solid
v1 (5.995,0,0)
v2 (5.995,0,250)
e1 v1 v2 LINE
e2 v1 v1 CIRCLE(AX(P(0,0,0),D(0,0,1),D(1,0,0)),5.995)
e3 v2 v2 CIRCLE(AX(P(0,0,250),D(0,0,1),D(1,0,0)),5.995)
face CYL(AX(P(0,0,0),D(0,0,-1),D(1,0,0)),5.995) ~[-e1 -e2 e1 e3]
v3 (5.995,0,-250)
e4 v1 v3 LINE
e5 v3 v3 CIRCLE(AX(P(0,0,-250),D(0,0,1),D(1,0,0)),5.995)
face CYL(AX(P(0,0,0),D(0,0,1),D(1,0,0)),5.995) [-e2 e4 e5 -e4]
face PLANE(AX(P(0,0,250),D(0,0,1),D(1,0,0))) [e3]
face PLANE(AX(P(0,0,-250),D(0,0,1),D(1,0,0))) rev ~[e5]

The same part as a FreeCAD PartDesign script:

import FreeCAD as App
import Part
import Sketcher

doc = App.newDocument("Part")
params = doc.addObject("Spreadsheet::Sheet", "Params")
for row, (alias, value) in enumerate([
    ("sketch1_diameter", "11.99 mm"),
    ("pad1_length", "500 mm"),
], start=1):
    params.set(f"A{row}", alias)
    params.set(f"B{row}", "=" + value)
    params.setAlias(f"B{row}", alias)

body = doc.addObject("PartDesign::Body", "Body")

sketch1 = doc.addObject("Sketcher::SketchObject", "Sketch")
body.addObject(sketch1)
sketch1.AttachmentSupport = (doc.XY_Plane, [""])
sketch1.MapMode = "FlatFace"
sketch1.addGeometry(Part.Circle(App.Vector(0, 0, 0), App.Vector(0, 0, 1), 5.995), False)
sketch1.addConstraint([
    Sketcher.Constraint("Coincident", 0, 3, -1, 1),
    Sketcher.Constraint("Diameter", 0, 11.99),
])
sketch1.setExpression("Constraints[1]", "Params.sketch1_diameter")
pad1 = doc.addObject("PartDesign::Pad", "Pad")
body.addObject(pad1)
pad1.Profile = sketch1
pad1.setExpression("Length", "Params.pad1_length")
pad1.Midplane = True

doc.recompute()
